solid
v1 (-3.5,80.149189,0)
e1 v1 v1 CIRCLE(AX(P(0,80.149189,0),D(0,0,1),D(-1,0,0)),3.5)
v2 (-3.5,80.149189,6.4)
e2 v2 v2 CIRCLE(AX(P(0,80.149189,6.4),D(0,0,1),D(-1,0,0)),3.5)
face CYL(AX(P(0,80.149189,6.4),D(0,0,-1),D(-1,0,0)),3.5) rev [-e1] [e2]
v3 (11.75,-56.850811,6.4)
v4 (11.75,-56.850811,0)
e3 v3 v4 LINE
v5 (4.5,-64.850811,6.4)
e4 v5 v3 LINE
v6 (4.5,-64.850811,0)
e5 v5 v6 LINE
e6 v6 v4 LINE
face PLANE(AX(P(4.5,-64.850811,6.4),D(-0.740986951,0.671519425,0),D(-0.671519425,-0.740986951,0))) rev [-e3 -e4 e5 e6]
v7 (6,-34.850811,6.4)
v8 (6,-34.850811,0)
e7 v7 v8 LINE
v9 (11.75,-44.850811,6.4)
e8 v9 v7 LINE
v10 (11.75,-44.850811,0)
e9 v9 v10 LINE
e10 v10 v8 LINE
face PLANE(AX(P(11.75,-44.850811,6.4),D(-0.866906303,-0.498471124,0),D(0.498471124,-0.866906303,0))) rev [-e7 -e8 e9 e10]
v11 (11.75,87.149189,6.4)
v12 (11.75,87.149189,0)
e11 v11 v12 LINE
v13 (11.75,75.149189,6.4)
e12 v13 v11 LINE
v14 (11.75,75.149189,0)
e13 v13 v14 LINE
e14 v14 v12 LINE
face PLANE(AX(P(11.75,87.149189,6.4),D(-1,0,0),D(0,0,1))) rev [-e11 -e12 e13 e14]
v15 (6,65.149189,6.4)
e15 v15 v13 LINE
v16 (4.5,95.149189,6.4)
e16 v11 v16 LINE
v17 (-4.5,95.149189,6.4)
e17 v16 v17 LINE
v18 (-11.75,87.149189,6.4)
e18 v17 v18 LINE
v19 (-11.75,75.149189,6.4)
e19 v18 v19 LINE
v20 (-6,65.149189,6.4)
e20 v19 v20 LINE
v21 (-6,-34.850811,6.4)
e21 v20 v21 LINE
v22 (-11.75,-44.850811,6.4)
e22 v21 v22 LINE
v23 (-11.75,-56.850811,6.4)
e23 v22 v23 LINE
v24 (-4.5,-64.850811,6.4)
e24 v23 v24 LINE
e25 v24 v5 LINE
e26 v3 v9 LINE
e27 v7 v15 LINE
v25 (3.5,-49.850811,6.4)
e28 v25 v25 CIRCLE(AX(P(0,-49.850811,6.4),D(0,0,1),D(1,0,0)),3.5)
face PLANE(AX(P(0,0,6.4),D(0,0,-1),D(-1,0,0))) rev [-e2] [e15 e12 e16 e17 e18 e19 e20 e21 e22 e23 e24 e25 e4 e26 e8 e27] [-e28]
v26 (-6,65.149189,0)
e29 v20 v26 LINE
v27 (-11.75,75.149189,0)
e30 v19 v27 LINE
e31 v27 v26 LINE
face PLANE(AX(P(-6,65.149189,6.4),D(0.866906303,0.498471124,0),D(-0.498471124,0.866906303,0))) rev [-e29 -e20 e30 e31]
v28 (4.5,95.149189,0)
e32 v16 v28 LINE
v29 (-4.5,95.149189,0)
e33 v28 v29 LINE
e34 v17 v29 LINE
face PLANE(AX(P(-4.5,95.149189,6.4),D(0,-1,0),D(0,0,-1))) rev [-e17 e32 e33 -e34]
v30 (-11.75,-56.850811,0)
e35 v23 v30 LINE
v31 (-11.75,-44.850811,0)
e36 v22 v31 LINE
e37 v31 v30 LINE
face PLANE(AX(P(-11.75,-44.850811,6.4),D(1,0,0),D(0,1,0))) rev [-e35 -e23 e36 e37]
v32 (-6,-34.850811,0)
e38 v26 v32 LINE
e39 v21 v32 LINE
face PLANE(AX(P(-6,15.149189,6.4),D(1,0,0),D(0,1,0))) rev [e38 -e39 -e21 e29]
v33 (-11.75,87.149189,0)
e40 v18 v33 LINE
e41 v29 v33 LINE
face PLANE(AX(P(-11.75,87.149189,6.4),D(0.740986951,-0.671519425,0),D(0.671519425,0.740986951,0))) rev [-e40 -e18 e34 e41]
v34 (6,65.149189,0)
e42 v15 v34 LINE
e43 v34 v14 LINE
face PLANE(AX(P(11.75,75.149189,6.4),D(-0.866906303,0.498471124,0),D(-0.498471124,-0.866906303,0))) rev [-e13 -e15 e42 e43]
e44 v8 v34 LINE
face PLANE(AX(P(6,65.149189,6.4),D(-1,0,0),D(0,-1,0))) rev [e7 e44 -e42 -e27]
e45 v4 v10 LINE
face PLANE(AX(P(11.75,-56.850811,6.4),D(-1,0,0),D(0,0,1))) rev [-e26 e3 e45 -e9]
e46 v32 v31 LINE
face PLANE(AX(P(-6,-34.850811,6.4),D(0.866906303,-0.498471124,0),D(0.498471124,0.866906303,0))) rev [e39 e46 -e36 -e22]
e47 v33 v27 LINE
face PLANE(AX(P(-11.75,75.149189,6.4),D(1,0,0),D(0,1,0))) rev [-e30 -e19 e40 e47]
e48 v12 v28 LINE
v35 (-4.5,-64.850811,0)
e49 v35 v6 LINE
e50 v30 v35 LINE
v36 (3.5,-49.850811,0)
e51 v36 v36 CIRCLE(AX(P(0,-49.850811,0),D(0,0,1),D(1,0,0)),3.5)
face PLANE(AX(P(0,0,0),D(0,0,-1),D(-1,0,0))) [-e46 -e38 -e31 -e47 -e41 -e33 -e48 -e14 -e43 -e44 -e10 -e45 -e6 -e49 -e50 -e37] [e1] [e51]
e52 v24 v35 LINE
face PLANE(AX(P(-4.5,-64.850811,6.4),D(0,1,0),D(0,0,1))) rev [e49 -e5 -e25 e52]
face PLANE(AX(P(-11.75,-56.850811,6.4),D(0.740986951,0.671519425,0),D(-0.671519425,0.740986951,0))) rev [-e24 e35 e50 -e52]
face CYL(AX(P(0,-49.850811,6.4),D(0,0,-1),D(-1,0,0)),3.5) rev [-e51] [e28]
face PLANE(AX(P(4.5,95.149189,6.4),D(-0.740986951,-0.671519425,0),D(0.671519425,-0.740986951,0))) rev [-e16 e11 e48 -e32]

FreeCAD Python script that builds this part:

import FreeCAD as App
import Part
import Sketcher

V = App.Vector

doc = App.newDocument("Part")
body = doc.addObject("PartDesign::Body", "Body")

sketch1 = body.newObject("Sketcher::SketchObject", "Sketch")
sketch1.AttachmentSupport = (doc.getObject("XY_Plane"), [""])
sketch1.MapMode = "FlatFace"
sketch1.addGeometry([
    Part.LineSegment(V(-6, -34.9, 0), V(-11.8, -44.9, 0)),
    Part.LineSegment(V(-11.8, -44.9, 0), V(-11.8, -56.9, 0)),
    Part.LineSegment(V(-11.8, -56.9, 0), V(-4.5, -64.9, 0)),
    Part.LineSegment(V(-4.5, -64.9, 0), V(4.5, -64.9, 0)),
    Part.LineSegment(V(4.5, -64.9, 0), V(11.8, -56.9, 0)),
    Part.LineSegment(V(11.8, -56.9, 0), V(11.8, -44.9, 0)),
    Part.LineSegment(V(11.8, -44.9, 0), V(6, -34.9, 0)),
    Part.LineSegment(V(6, -34.9, 0), V(6, 65.1, 0)),
    Part.LineSegment(V(6, 65.1, 0), V(11.8, 75.1, 0)),
    Part.LineSegment(V(11.8, 75.1, 0), V(11.8, 87.1, 0)),
    Part.LineSegment(V(11.8, 87.1, 0), V(4.5, 95.1, 0)),
    Part.LineSegment(V(4.5, 95.1, 0), V(-4.5, 95.1, 0)),
    Part.LineSegment(V(-4.5, 95.1, 0), V(-11.8, 87.1, 0)),
    Part.LineSegment(V(-11.8, 87.1, 0), V(-11.8, 75.1, 0)),
    Part.LineSegment(V(-11.8, 75.1, 0), V(-6, 65.1, 0)),
    Part.LineSegment(V(-6, 65.1, 0), V(-6, -34.9, 0)),
    Part.Circle(V(0, -49.9, 0), V(0, 0, 1), 3.5),
    Part.Circle(V(0, 80.1, 0), V(0, 0, 1), 3.5),
], False)
sketch1.addConstraint([
    Sketcher.Constraint("Coincident", 0, 2, 1, 1),
    Sketcher.Constraint("Coincident", 1, 2, 2, 1),
    Sketcher.Constraint("Coincident", 2, 2, 3, 1),
    Sketcher.Constraint("Coincident", 3, 2, 4, 1),
    Sketcher.Constraint("Coincident", 4, 2, 5, 1),
    Sketcher.Constraint("Coincident", 5, 2, 6, 1),
    Sketcher.Constraint("Coincident", 6, 2, 7, 1),
    Sketcher.Constraint("Coincident", 7, 2, 8, 1),
    Sketcher.Constraint("Coincident", 8, 2, 9, 1),
    Sketcher.Constraint("Coincident", 9, 2, 10, 1),
    Sketcher.Constraint("Coincident", 10, 2, 11, 1),
    Sketcher.Constraint("Coincident", 11, 2, 12, 1),
    Sketcher.Constraint("Coincident", 12, 2, 13, 1),
    Sketcher.Constraint("Coincident", 13, 2, 14, 1),
    Sketcher.Constraint("Coincident", 14, 2, 15, 1),
    Sketcher.Constraint("Coincident", 15, 2, 0, 1),
    Sketcher.Constraint("Vertical", 1),
    Sketcher.Constraint("Horizontal", 3),
    Sketcher.Constraint("Vertical", 5),
    Sketcher.Constraint("Vertical", 7),
    Sketcher.Constraint("Vertical", 9),
    Sketcher.Constraint("Horizontal", 11),
    Sketcher.Constraint("Vertical", 13),
    Sketcher.Constraint("Vertical", 15),
    Sketcher.Constraint("Equal", 16, 17),
    Sketcher.Constraint("Symmetric", 1, 2, 4, 2, -2),
    Sketcher.Constraint("Symmetric", 9, 2, 12, 2, -2),
    Sketcher.Constraint("Symmetric", 7, 2, 14, 2, -2),
    Sketcher.Constraint("PointOnObject", 16, 3, -2),
    Sketcher.Constraint("PointOnObject", 17, 3, -2),
    Sketcher.Constraint("Parallel", 0, 8),
    Sketcher.Constraint("Parallel", 2, 10),
    Sketcher.Constraint("Parallel", 4, 12),
    Sketcher.Constraint("Parallel", 6, 14),
    Sketcher.Constraint("Horizontal", 0, 2, 5, 2),
    Sketcher.Constraint("Horizontal", 8, 2, 13, 2),
    Sketcher.Constraint("Vertical", 5, 2, 8, 2),
    Sketcher.Constraint("Vertical", 3, 2, 10, 2),
    Sketcher.Constraint("Vertical", 2, 2, 11, 2),
    Sketcher.Constraint("Equal", 5, 9),
    Sketcher.Constraint("Diameter", 16, 7.0),
    Sketcher.Constraint("DistanceX", 3, 1, 3, 2, 9.0),
    Sketcher.Constraint("DistanceY", 1, 2, 1, 1, 12.0),
    Sketcher.Constraint("DistanceY", 7, 1, 7, 2, 100.0),
    Sketcher.Constraint("DistanceX", -1, 1, 6, 2, 6.0),
    Sketcher.Constraint("DistanceY", 16, 3, 17, 3, 130.0),
    Sketcher.Constraint("DistanceY", 16, 3, 0, 2, 5.0),
    Sketcher.Constraint("DistanceY", 2, 2, 1, 2, 8.0),
    Sketcher.Constraint("DistanceY", 5, 2, 6, 2, 10.0),
    Sketcher.Constraint("DistanceX", 1, 2, 4, 2, 23.5),
    Sketcher.Constraint("DistanceY", 16, 3, -1, 1, 49.850811),
])
pad1 = body.newObject("PartDesign::Pad", "Pad")
pad1.Profile = sketch1
pad1.Length = 6.4

doc.recompute()
